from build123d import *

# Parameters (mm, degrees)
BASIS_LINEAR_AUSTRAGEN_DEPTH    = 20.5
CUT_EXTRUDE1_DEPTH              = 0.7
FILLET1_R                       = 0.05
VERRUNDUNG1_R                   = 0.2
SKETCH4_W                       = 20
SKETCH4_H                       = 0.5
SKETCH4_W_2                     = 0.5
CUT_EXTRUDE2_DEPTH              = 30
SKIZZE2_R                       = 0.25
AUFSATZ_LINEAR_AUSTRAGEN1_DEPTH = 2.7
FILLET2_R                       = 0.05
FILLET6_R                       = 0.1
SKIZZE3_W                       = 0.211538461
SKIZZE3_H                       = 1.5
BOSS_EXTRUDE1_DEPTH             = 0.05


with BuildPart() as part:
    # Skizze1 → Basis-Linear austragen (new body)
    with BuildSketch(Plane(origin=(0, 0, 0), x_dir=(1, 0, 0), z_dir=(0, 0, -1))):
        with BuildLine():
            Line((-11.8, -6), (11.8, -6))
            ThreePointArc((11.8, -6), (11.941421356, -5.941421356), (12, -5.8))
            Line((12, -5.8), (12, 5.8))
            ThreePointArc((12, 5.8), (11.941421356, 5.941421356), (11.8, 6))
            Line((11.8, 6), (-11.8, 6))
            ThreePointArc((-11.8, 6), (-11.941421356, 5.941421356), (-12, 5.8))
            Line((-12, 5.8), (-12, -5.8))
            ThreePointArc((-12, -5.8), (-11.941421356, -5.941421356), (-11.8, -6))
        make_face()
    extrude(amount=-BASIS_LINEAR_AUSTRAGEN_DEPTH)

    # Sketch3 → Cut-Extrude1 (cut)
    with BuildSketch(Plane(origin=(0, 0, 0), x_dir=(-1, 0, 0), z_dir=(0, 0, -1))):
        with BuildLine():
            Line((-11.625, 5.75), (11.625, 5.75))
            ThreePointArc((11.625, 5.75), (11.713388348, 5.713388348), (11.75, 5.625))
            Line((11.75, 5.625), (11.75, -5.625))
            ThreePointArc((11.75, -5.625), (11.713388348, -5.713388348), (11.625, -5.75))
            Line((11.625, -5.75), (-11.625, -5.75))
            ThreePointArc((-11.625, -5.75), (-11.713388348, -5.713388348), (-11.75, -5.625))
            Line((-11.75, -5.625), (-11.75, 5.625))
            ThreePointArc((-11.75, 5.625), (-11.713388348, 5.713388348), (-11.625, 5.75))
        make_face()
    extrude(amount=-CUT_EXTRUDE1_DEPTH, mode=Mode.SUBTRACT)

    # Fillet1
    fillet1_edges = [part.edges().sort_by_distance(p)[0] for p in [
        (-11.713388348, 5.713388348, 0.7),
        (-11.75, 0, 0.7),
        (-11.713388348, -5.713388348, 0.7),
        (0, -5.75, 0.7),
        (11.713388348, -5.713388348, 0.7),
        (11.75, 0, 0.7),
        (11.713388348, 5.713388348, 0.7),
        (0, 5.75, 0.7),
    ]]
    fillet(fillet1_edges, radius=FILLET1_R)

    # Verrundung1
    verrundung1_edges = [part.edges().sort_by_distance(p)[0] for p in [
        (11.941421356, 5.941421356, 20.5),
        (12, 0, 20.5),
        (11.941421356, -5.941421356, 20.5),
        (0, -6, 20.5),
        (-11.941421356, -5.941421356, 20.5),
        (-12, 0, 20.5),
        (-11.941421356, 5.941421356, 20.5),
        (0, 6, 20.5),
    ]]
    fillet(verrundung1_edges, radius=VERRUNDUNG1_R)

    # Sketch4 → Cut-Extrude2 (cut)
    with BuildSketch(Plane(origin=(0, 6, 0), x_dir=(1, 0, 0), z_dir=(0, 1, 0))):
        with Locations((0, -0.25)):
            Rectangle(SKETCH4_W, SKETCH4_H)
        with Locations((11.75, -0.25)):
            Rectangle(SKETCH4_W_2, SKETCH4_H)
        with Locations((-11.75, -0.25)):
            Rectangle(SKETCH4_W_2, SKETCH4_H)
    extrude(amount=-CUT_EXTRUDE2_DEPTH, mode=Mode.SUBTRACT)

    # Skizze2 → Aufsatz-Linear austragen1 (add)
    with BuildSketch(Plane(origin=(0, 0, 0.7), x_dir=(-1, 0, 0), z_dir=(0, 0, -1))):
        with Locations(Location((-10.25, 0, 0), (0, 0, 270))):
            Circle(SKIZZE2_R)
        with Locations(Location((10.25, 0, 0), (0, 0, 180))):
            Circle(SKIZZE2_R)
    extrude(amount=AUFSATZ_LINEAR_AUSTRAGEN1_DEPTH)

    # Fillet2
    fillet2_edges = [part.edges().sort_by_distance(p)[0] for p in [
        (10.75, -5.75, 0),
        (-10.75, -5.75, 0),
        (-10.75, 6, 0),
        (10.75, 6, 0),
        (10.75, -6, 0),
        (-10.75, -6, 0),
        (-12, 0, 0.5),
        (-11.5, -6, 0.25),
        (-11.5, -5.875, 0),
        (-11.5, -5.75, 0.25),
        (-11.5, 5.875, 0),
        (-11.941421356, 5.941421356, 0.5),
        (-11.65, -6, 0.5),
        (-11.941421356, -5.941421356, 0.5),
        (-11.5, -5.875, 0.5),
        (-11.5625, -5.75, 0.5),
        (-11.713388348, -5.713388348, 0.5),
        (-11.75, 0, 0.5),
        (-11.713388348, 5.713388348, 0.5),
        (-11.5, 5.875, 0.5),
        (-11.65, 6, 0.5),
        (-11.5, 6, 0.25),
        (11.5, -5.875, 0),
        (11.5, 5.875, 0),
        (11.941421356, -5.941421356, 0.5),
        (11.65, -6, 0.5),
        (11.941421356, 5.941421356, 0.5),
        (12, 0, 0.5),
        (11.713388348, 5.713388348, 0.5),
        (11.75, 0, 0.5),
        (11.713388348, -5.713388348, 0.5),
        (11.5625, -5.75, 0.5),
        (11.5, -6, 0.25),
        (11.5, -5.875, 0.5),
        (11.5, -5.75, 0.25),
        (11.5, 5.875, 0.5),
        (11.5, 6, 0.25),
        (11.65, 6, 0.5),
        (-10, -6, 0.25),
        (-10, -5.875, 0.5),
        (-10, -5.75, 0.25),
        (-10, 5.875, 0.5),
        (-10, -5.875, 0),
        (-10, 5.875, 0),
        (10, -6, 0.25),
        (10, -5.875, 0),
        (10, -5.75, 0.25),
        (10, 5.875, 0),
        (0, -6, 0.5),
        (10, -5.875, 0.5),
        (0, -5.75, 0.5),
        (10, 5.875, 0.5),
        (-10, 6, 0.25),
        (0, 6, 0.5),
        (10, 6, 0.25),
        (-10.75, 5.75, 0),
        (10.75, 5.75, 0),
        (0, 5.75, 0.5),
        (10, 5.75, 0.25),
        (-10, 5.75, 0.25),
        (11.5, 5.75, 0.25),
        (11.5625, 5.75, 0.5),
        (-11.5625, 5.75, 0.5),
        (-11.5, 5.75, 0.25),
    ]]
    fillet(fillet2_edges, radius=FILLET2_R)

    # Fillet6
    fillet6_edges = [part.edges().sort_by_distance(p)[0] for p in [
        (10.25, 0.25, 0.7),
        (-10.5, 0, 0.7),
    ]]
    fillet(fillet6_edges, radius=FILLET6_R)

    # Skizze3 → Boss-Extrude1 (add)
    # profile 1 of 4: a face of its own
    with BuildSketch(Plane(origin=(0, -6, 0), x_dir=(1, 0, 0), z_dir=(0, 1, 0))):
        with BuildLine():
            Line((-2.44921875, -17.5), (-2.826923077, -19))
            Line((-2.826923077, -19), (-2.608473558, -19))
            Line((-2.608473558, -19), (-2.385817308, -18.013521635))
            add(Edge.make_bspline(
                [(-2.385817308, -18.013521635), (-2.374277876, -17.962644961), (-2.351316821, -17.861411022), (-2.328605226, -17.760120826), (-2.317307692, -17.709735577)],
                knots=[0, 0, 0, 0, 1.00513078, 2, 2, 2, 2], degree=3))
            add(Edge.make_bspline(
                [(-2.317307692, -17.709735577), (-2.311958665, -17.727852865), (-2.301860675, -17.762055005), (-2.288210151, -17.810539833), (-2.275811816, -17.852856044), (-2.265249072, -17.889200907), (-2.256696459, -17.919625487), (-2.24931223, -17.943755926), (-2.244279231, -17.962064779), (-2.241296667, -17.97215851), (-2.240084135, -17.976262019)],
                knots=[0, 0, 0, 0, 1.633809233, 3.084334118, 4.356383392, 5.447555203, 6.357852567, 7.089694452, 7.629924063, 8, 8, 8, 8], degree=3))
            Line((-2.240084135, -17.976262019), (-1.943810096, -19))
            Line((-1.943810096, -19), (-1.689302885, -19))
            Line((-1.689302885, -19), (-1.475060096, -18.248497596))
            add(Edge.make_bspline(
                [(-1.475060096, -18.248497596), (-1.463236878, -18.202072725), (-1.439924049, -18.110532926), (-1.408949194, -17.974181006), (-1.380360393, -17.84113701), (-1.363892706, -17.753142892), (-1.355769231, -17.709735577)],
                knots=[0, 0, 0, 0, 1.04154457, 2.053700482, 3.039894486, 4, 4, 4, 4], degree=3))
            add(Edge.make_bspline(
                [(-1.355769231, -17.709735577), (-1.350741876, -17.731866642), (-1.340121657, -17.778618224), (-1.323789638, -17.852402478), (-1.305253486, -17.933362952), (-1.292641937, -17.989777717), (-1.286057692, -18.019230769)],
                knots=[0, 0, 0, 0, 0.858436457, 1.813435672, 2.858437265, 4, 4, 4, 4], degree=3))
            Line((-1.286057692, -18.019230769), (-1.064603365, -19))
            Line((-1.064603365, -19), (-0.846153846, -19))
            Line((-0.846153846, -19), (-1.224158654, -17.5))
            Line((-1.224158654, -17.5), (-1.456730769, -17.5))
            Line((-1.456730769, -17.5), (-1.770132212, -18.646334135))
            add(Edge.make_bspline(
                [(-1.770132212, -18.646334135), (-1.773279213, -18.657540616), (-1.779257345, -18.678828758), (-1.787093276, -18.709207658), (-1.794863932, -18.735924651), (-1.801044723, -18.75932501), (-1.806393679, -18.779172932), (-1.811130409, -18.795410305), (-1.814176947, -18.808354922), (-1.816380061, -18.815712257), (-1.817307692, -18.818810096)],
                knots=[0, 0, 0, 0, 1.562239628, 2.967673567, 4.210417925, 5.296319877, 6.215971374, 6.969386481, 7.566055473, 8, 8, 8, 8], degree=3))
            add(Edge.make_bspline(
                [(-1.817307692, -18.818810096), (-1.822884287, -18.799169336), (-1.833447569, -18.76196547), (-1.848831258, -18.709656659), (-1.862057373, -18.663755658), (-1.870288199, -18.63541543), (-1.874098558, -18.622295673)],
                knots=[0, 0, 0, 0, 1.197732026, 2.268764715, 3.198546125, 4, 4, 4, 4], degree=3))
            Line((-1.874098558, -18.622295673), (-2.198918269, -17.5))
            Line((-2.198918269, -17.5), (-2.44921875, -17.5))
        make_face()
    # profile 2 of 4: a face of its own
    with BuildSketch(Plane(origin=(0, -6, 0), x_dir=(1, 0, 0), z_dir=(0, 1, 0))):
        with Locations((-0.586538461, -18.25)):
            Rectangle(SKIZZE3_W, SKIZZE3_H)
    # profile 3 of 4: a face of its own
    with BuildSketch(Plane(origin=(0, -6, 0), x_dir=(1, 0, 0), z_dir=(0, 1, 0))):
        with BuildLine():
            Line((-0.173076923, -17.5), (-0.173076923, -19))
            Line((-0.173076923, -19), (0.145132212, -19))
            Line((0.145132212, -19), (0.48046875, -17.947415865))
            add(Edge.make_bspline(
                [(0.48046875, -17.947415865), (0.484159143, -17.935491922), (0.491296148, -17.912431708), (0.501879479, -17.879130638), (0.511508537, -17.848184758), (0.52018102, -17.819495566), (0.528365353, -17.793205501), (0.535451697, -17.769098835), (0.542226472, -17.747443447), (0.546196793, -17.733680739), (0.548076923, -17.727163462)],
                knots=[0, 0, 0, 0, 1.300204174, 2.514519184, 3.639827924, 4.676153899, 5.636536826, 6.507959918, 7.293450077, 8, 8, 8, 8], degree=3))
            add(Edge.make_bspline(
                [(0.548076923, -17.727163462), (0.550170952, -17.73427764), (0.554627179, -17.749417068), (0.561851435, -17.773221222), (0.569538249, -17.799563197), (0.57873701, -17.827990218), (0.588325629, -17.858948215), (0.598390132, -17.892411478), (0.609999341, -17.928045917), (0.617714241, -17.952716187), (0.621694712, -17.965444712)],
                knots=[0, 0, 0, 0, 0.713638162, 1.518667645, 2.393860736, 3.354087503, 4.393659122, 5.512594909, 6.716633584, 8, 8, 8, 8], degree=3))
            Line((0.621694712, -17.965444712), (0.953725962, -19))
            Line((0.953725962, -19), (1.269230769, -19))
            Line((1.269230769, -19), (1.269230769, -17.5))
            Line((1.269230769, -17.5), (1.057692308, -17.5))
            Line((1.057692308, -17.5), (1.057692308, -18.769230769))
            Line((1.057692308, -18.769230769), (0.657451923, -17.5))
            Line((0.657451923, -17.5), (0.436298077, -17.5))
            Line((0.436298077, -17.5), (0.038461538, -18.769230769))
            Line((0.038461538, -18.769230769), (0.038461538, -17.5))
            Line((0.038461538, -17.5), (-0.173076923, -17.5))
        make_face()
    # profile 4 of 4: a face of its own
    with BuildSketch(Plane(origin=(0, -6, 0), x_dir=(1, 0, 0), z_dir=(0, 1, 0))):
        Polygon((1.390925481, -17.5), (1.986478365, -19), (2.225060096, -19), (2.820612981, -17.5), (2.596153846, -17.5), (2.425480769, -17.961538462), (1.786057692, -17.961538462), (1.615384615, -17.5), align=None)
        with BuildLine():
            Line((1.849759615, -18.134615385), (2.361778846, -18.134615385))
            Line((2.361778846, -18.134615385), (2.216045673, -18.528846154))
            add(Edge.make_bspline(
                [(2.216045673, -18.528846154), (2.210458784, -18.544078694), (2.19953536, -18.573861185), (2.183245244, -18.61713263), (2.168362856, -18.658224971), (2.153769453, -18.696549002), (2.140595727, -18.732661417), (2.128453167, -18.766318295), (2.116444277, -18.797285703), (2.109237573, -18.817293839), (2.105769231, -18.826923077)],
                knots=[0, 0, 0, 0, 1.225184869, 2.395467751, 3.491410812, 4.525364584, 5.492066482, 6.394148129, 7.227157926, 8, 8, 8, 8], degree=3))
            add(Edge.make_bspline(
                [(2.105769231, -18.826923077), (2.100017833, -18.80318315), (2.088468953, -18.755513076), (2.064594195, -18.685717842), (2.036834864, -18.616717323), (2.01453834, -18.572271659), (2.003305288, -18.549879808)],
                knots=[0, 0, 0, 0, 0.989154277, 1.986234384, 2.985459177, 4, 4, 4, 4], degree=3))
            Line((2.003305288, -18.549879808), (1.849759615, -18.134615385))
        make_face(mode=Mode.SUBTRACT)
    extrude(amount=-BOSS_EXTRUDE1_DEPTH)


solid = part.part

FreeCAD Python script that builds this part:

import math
import FreeCAD as App
import Part
import Sketcher
from FreeCAD import Vector


def edges_at(feature, points):
    """Names of the edges that pass closest to the given points."""
    edges = feature.Shape.Edges
    near = lambda p: min(range(len(edges)), key=lambda i: edges[i].distToShape(Part.Vertex(*p))[0])
    return sorted({f"Edge{near(p) + 1}" for p in points})


def add_polygon(sketch, points):
    """Adds a closed chain of lines whose ends are joined by coincident constraints."""
    first, n = sketch.GeometryCount, len(points)
    for a, b in zip(points, points[1:] + points[:1]):
        sketch.addGeometry(Part.LineSegment(App.Vector(*a, 0), App.Vector(*b, 0)), False)
    for i in range(n):
        sketch.addConstraint(Sketcher.Constraint("Coincident", first + i, 2, first + (i + 1) % n, 1))

doc = App.newDocument("Part")
params = doc.addObject("Spreadsheet::Sheet", "Params")
for row, (alias, value) in enumerate([
    ("sketch1_radius", "0.2 mm"),
    ("sketch1_width", "23.6 mm"),
    ("sketch1_height", "11.6 mm"),
    ("pad1_length", "20.5 mm"),
    ("sketch2_width", "23.25 mm"),
    ("sketch2_height", "11.25 mm"),
    ("pocket1_length", "0.7 mm"),
    ("fillet_radius", "0.05 mm"),
    ("fillet2_radius", "0.2 mm"),
    ("sketch3_width", "20 mm"),
    ("sketch3_width2", "0.5 mm"),
    ("pocket2_length", "30 mm"),
    ("sketch4_diameter", "0.5 mm"),
    ("pad2_length", "2.7 mm"),
    ("fillet3_radius", "0.05 mm"),
    ("fillet4_radius", "0.1 mm"),
    ("sketch5_height", "1.5 mm"),
    ("sketch5_height2", "1.5 mm"),
    ("sketch5_height3", "1.5 mm"),
    ("pad3_length", "0.05 mm"),
], start=1):
    params.set(f"A{row}", alias)
    params.set(f"B{row}", "=" + value)
    params.setAlias(f"B{row}", alias)

body = doc.addObject("PartDesign::Body", "Body")

sketch1 = body.newObject("Sketcher::SketchObject", "Sketch")
sketch1.AttachmentSupport = (doc.getObject("XY_Plane"), [""])
sketch1.MapMode = "FlatFace"
sketch1.addGeometry([
    Part.LineSegment(Vector(-11.8, 6, 0), Vector(11.8, 6, 0)),
    Part.ArcOfCircle(Part.Circle(Vector(11.8, 5.8, 0), Vector(0, 0, 1), 0.2), math.radians(0), math.radians(90)),
    Part.LineSegment(Vector(12, 5.8, 0), Vector(12, -5.8, 0)),
    Part.ArcOfCircle(Part.Circle(Vector(11.8, -5.8, 0), Vector(0, 0, 1), 0.2), math.radians(-90), math.radians(0)),
    Part.LineSegment(Vector(11.8, -6, 0), Vector(-11.8, -6, 0)),
    Part.ArcOfCircle(Part.Circle(Vector(-11.8, -5.8, 0), Vector(0, 0, 1), 0.2), math.radians(-180), math.radians(-90)),
    Part.LineSegment(Vector(-12, -5.8, 0), Vector(-12, 5.8, 0)),
    Part.ArcOfCircle(Part.Circle(Vector(-11.8, 5.8, 0), Vector(0, 0, 1), 0.2), math.radians(90), math.radians(180)),
], False)
sketch1.addConstraint([
    Sketcher.Constraint("Tangent", 0, 2, 1, 2),
    Sketcher.Constraint("Tangent", 1, 1, 2, 1),
    Sketcher.Constraint("Tangent", 2, 2, 3, 2),
    Sketcher.Constraint("Tangent", 3, 1, 4, 1),
    Sketcher.Constraint("Tangent", 4, 2, 5, 2),
    Sketcher.Constraint("Tangent", 5, 1, 6, 1),
    Sketcher.Constraint("Tangent", 6, 2, 7, 2),
    Sketcher.Constraint("Tangent", 7, 1, 0, 1),
    Sketcher.Constraint("Horizontal", 0),
    Sketcher.Constraint("Vertical", 2),
    Sketcher.Constraint("Horizontal", 4),
    Sketcher.Constraint("Vertical", 6),
    Sketcher.Constraint("Equal", 1, 3),
    Sketcher.Constraint("Equal", 3, 5),
    Sketcher.Constraint("Equal", 5, 7),
    Sketcher.Constraint("Symmetric", 1, 3, 5, 3, -1, 1),
    Sketcher.Constraint("Radius", 1, 0.2),
    Sketcher.Constraint("DistanceX", 0, 1, 0, 2, 23.6),
    Sketcher.Constraint("DistanceY", 2, 2, 2, 1, 11.6),
])
sketch1.setExpression("Constraints[16]", "Params.sketch1_radius")
sketch1.setExpression("Constraints[17]", "Params.sketch1_width")
sketch1.setExpression("Constraints[18]", "Params.sketch1_height")
pad1 = body.newObject("PartDesign::Pad", "Pad")
pad1.Profile = sketch1
pad1.setExpression("Length", "Params.pad1_length")

sketch2 = body.newObject("Sketcher::SketchObject", "Sketch001")
sketch2.AttachmentSupport = (doc.getObject("XY_Plane"), [""])
sketch2.MapMode = "FlatFace"
sketch2.addGeometry([
    Part.LineSegment(Vector(-11.62, 5.75, 0), Vector(11.62, 5.75, 0)),
    Part.ArcOfCircle(Part.Circle(Vector(11.63, 5.63, 0), Vector(0, 0, 1), 0.12), math.radians(0), math.radians(90)),
    Part.LineSegment(Vector(11.75, 5.62, 0), Vector(11.75, -5.62, 0)),
    Part.ArcOfCircle(Part.Circle(Vector(11.63, -5.63, 0), Vector(0, 0, 1), 0.12), math.radians(-90), math.radians(0)),
    Part.LineSegment(Vector(11.62, -5.75, 0), Vector(-11.62, -5.75, 0)),
    Part.ArcOfCircle(Part.Circle(Vector(-11.63, -5.63, 0), Vector(0, 0, 1), 0.12), math.radians(180), math.radians(270)),
    Part.LineSegment(Vector(-11.75, -5.62, 0), Vector(-11.75, 5.62, 0)),
    Part.ArcOfCircle(Part.Circle(Vector(-11.63, 5.63, 0), Vector(0, 0, 1), 0.12), math.radians(90), math.radians(180)),
], False)
sketch2.addConstraint([
    Sketcher.Constraint("Tangent", 0, 2, 1, 2),
    Sketcher.Constraint("Tangent", 1, 1, 2, 1),
    Sketcher.Constraint("Tangent", 2, 2, 3, 2),
    Sketcher.Constraint("Tangent", 3, 1, 4, 1),
    Sketcher.Constraint("Tangent", 4, 2, 5, 2),
    Sketcher.Constraint("Tangent", 5, 1, 6, 1),
    Sketcher.Constraint("Tangent", 6, 2, 7, 2),
    Sketcher.Constraint("Tangent", 7, 1, 0, 1),
    Sketcher.Constraint("Horizontal", 0),
    Sketcher.Constraint("Vertical", 2),
    Sketcher.Constraint("Horizontal", 4),
    Sketcher.Constraint("Vertical", 6),
    Sketcher.Constraint("Equal", 1, 3),
    Sketcher.Constraint("Equal", 3, 5),
    Sketcher.Constraint("Equal", 5, 7),
    Sketcher.Constraint("Symmetric", 1, 3, 5, 3, -1, 1),
    Sketcher.Constraint("Radius", 1, 0.125),
    Sketcher.Constraint("DistanceX", 0, 1, 0, 2, 23.25),
    Sketcher.Constraint("DistanceY", 2, 2, 2, 1, 11.25),
])
sketch2.setExpression("Constraints[17]", "Params.sketch2_width")
sketch2.setExpression("Constraints[18]", "Params.sketch2_height")
pocket1 = body.newObject("PartDesign::Pocket", "Pocket")
pocket1.Profile = sketch2
pocket1.setExpression("Length", "Params.pocket1_length")
pocket1.Reversed = True
doc.recompute()

fillet = body.newObject("PartDesign::Fillet", "Fillet")
fillet.Base = (pocket1, edges_at(pocket1, [
    (-11.713, 5.713, 0.7),
    (-11.75, 0, 0.7),
    (-11.713, -5.713, 0.7),
    (0, -5.75, 0.7),
    (11.713, -5.713, 0.7),
    (11.75, 0, 0.7),
    (11.713, 5.713, 0.7),
    (0, 5.75, 0.7),
]))
fillet.setExpression("Radius", "Params.fillet_radius")
doc.recompute()

fillet2 = body.newObject("PartDesign::Fillet", "Fillet001")
fillet2.Base = (fillet, edges_at(fillet, [
    (11.941, 5.941, 20.5),
    (12, 0, 20.5),
    (11.941, -5.941, 20.5),
    (0, -6, 20.5),
    (-11.941, -5.941, 20.5),
    (-12, 0, 20.5),
    (-11.941, 5.941, 20.5),
    (0, 6, 20.5),
]))
fillet2.setExpression("Radius", "Params.fillet2_radius")

sketch3 = body.newObject("Sketcher::SketchObject", "Sketch002")
sketch3.AttachmentSupport = (doc.getObject("XZ_Plane"), [""])
sketch3.MapMode = "FlatFace"
sketch3.AttachmentOffset = App.Placement(Vector(0, 0, -6), App.Rotation())
add_polygon(sketch3, [(-10, 0), (-10, 0.5), (10, 0.5), (10, 0)])
add_polygon(sketch3, [(11.5, 0), (11.5, 0.5), (12, 0.5), (12, 0)])
add_polygon(sketch3, [(-12, 0), (-12, 0.5), (-11.5, 0.5), (-11.5, 0)])
sketch3.addConstraint([
    Sketcher.Constraint("Vertical", 0),
    Sketcher.Constraint("Horizontal", 1),
    Sketcher.Constraint("Vertical", 2),
    Sketcher.Constraint("Horizontal", 3),
    Sketcher.Constraint("Vertical", 4),
    Sketcher.Constraint("Horizontal", 5),
    Sketcher.Constraint("Vertical", 6),
    Sketcher.Constraint("Horizontal", 7),
    Sketcher.Constraint("Vertical", 8),
    Sketcher.Constraint("Horizontal", 9),
    Sketcher.Constraint("Vertical", 10),
    Sketcher.Constraint("Horizontal", 11),
    Sketcher.Constraint("Symmetric", 2, 2, 3, 2, -1, 1),
    Sketcher.Constraint("Symmetric", 7, 2, 10, 2, -1, 1),
    Sketcher.Constraint("Symmetric", 5, 2, 8, 2, -2),
    Sketcher.Constraint("PointOnObject", 6, 2, -1),
    Sketcher.Constraint("Horizontal", 1, 2, 4, 2),
    Sketcher.Constraint("Equal", 11, 0),
    Sketcher.Constraint("DistanceX", 1, 1, 1, 2, 20.0),
    Sketcher.Constraint("DistanceX", 5, 1, 5, 2, 0.5),
    Sketcher.Constraint("DistanceX", -1, 1, 5, 2, 12.0),
])
sketch3.setExpression("Constraints[30]", "Params.sketch3_width")
sketch3.setExpression("Constraints[31]", "Params.sketch3_width2")
pocket2 = body.newObject("PartDesign::Pocket", "Pocket001")
pocket2.Profile = sketch3
pocket2.setExpression("Length", "Params.pocket2_length")
pocket2.Reversed = True

sketch4 = body.newObject("Sketcher::SketchObject", "Sketch003")
sketch4.AttachmentSupport = (doc.getObject("XY_Plane"), [""])
sketch4.MapMode = "FlatFace"
sketch4.AttachmentOffset = App.Placement(Vector(0, 0, 0.7), App.Rotation())
sketch4.addGeometry([
    Part.Circle(Vector(10.25, 0, 0), Vector(0, 0, 1), 0.25),
    Part.Circle(Vector(-10.25, 0, 0), Vector(0, 0, 1), 0.25),
], False)
sketch4.addConstraint([
    Sketcher.Constraint("Equal", 0, 1),
    Sketcher.Constraint("Symmetric", 0, 3, 1, 3, -1, 1),
    Sketcher.Constraint("PointOnObject", 0, 3, -1),
    Sketcher.Constraint("Diameter", 0, 0.5),
    Sketcher.Constraint("DistanceX", 1, 3, 0, 3, 20.5),
])
sketch4.setExpression("Constraints[3]", "Params.sketch4_diameter")
pad2 = body.newObject("PartDesign::Pad", "Pad001")
pad2.Profile = sketch4
pad2.setExpression("Length", "Params.pad2_length")
pad2.Reversed = True
doc.recompute()

fillet3 = body.newObject("PartDesign::Fillet", "Fillet002")
fillet3.Base = (pad2, edges_at(pad2, [
    (10.75, -5.75, 0),
    (-10.75, -5.75, 0),
    (-10.75, 6, 0),
    (10.75, 6, 0),
    (10.75, -6, 0),
    (-10.75, -6, 0),
    (-12, 0, 0.5),
    (-11.5, -6, 0.25),
    (-11.5, -5.875, 0),
    (-11.5, -5.75, 0.25),
    (-11.5, 5.875, 0),
    (-11.941, 5.941, 0.5),
    (-11.65, -6, 0.5),
    (-11.941, -5.941, 0.5),
    (-11.5, -5.875, 0.5),
    (-11.562, -5.75, 0.5),
    (-11.713, -5.713, 0.5),
    (-11.75, 0, 0.5),
    (-11.713, 5.713, 0.5),
    (-11.5, 5.875, 0.5),
    (-11.65, 6, 0.5),
    (-11.5, 6, 0.25),
    (11.5, -5.875, 0),
    (11.5, 5.875, 0),
    (11.941, -5.941, 0.5),
    (11.65, -6, 0.5),
    (11.941, 5.941, 0.5),
    (12, 0, 0.5),
    (11.713, 5.713, 0.5),
    (11.75, 0, 0.5),
    (11.713, -5.713, 0.5),
    (11.562, -5.75, 0.5),
    (11.5, -6, 0.25),
    (11.5, -5.875, 0.5),
    (11.5, -5.75, 0.25),
    (11.5, 5.875, 0.5),
    (11.5, 6, 0.25),
    (11.65, 6, 0.5),
    (-10, -6, 0.25),
    (-10, -5.875, 0.5),
    (-10, -5.75, 0.25),
    (-10, 5.875, 0.5),
    (-10, -5.875, 0),
    (-10, 5.875, 0),
    (10, -6, 0.25),
    (10, -5.875, 0),
    (10, -5.75, 0.25),
    (10, 5.875, 0),
    (0, -6, 0.5),
    (10, -5.875, 0.5),
    (0, -5.75, 0.5),
    (10, 5.875, 0.5),
    (-10, 6, 0.25),
    (0, 6, 0.5),
    (10, 6, 0.25),
    (-10.75, 5.75, 0),
    (10.75, 5.75, 0),
    (0, 5.75, 0.5),
    (10, 5.75, 0.25),
    (-10, 5.75, 0.25),
    (11.5, 5.75, 0.25),
    (11.562, 5.75, 0.5),
    (-11.562, 5.75, 0.5),
    (-11.5, 5.75, 0.25),
]))
fillet3.setExpression("Radius", "Params.fillet3_radius")
doc.recompute()

fillet4 = body.newObject("PartDesign::Fillet", "Fillet003")
fillet4.Base = (fillet3, edges_at(fillet3, [(10.25, 0.25, 0.7), (-10.5, 0, 0.7)]))
fillet4.setExpression("Radius", "Params.fillet4_radius")

sketch5 = body.newObject("Sketcher::SketchObject", "Sketch004")
sketch5.AttachmentSupport = (doc.getObject("XZ_Plane"), [""])
sketch5.MapMode = "FlatFace"
sketch5.AttachmentOffset = App.Placement(Vector(0, 0, 6), App.Rotation())
sketch5.addGeometry(Part.LineSegment(Vector(-2.449219, 17.5, 0), Vector(-2.826923, 19, 0)), False)
sketch5.addGeometry(Part.LineSegment(Vector(-2.826923, 19, 0), Vector(-2.608474, 19, 0)), False)
sketch5.addGeometry(Part.LineSegment(Vector(-2.608474, 19, 0), Vector(-2.385817, 18.013522, 0)), False)
sketch5.addGeometry(Part.BSplineCurve([Vector(-2.385817, 18.013522, 0), Vector(-2.374278, 17.962645, 0), Vector(-2.351317, 17.861411, 0), Vector(-2.328605, 17.760121, 0), Vector(-2.317308, 17.709736, 0)], [4, 1, 4], [0, 1.00513078, 2], False, 3, [1, 1, 1, 1, 1], False), False)
sketch5.addGeometry(Part.BSplineCurve([Vector(-2.317308, 17.709736, 0), Vector(-2.311959, 17.727853, 0), Vector(-2.301861, 17.762055, 0), Vector(-2.28821, 17.81054, 0), Vector(-2.275812, 17.852856, 0), Vector(-2.265249, 17.889201, 0), Vector(-2.256696, 17.919625, 0), Vector(-2.249312, 17.943756, 0), Vector(-2.244279, 17.962065, 0), Vector(-2.241297, 17.972159, 0), Vector(-2.240084, 17.976262, 0)], [4, 1, 1, 1, 1, 1, 1, 1, 4], [0, 1.633809233, 3.084334118, 4.356383392, 5.447555203, 6.357852567, 7.089694452, 7.629924063, 8], False, 3, [1, 1, 1, 1, 1, 1, 1, 1, 1, 1, 1], False), False)
sketch5.addGeometry(Part.LineSegment(Vector(-2.240084, 17.976262, 0), Vector(-1.94381, 19, 0)), False)
sketch5.addGeometry(Part.LineSegment(Vector(-1.94381, 19, 0), Vector(-1.689303, 19, 0)), False)
sketch5.addGeometry(Part.LineSegment(Vector(-1.689303, 19, 0), Vector(-1.47506, 18.248498, 0)), False)
sketch5.addGeometry(Part.BSplineCurve([Vector(-1.47506, 18.248498, 0), Vector(-1.463237, 18.202073, 0), Vector(-1.439924, 18.110533, 0), Vector(-1.408949, 17.974181, 0), Vector(-1.38036, 17.841137, 0), Vector(-1.363893, 17.753143, 0), Vector(-1.355769, 17.709736, 0)], [4, 1, 1, 1, 4], [0, 1.04154457, 2.053700482, 3.039894486, 4], False, 3, [1, 1, 1, 1, 1, 1, 1], False), False)
sketch5.addGeometry(Part.BSplineCurve([Vector(-1.355769, 17.709736, 0), Vector(-1.350742, 17.731867, 0), Vector(-1.340122, 17.778618, 0), Vector(-1.32379, 17.852402, 0), Vector(-1.305253, 17.933363, 0), Vector(-1.292642, 17.989778, 0), Vector(-1.286058, 18.019231, 0)], [4, 1, 1, 1, 4], [0, 0.858436457, 1.813435672, 2.858437265, 4], False, 3, [1, 1, 1, 1, 1, 1, 1], False), False)
sketch5.addGeometry(Part.LineSegment(Vector(-1.286058, 18.019231, 0), Vector(-1.064603, 19, 0)), False)
sketch5.addGeometry(Part.LineSegment(Vector(-1.064603, 19, 0), Vector(-0.846154, 19, 0)), False)
sketch5.addGeometry(Part.LineSegment(Vector(-0.846154, 19, 0), Vector(-1.224159, 17.5, 0)), False)
sketch5.addGeometry(Part.LineSegment(Vector(-1.224159, 17.5, 0), Vector(-1.456731, 17.5, 0)), False)
sketch5.addGeometry(Part.LineSegment(Vector(-1.456731, 17.5, 0), Vector(-1.770132, 18.646334, 0)), False)
sketch5.addGeometry(Part.BSplineCurve([Vector(-1.770132, 18.646334, 0), Vector(-1.773279, 18.657541, 0), Vector(-1.779257, 18.678829, 0), Vector(-1.787093, 18.709208, 0), Vector(-1.794864, 18.735925, 0), Vector(-1.801045, 18.759325, 0), Vector(-1.806394, 18.779173, 0), Vector(-1.81113, 18.79541, 0), Vector(-1.814177, 18.808355, 0), Vector(-1.81638, 18.815712, 0), Vector(-1.817308, 18.81881, 0)], [4, 1, 1, 1, 1, 1, 1, 1, 4], [0, 1.562239628, 2.967673567, 4.210417925, 5.296319877, 6.215971374, 6.969386481, 7.566055473, 8], False, 3, [1, 1, 1, 1, 1, 1, 1, 1, 1, 1, 1], False), False)
sketch5.addGeometry(Part.BSplineCurve([Vector(-1.817308, 18.81881, 0), Vector(-1.822884, 18.799169, 0), Vector(-1.833448, 18.761965, 0), Vector(-1.848831, 18.709657, 0), Vector(-1.862057, 18.663756, 0), Vector(-1.870288, 18.635415, 0), Vector(-1.874099, 18.622296, 0)], [4, 1, 1, 1, 4], [0, 1.197732026, 2.268764715, 3.198546125, 4], False, 3, [1, 1, 1, 1, 1, 1, 1], False), False)
sketch5.addGeometry(Part.LineSegment(Vector(-1.874099, 18.622296, 0), Vector(-2.198918, 17.5, 0)), False)
sketch5.addGeometry(Part.LineSegment(Vector(-2.198918, 17.5, 0), Vector(-2.449219, 17.5, 0)), False)
add_polygon(sketch5, [(-0.692308, 17.5), (-0.692308, 19), (-0.480769, 19), (-0.480769, 17.5)])
sketch5.addGeometry(Part.LineSegment(Vector(-0.173077, 17.5, 0), Vector(-0.173077, 19, 0)), False)
sketch5.addGeometry(Part.LineSegment(Vector(-0.173077, 19, 0), Vector(0.145132, 19, 0)), False)
sketch5.addGeometry(Part.LineSegment(Vector(0.145132, 19, 0), Vector(0.480469, 17.947416, 0)), False)
sketch5.addGeometry(Part.BSplineCurve([Vector(0.480469, 17.947416, 0), Vector(0.484159, 17.935492, 0), Vector(0.491296, 17.912432, 0), Vector(0.501879, 17.879131, 0), Vector(0.511509, 17.848185, 0), Vector(0.520181, 17.819496, 0), Vector(0.528365, 17.793206, 0), Vector(0.535452, 17.769099, 0), Vector(0.542226, 17.747443, 0), Vector(0.546197, 17.733681, 0), Vector(0.548077, 17.727163, 0)], [4, 1, 1, 1, 1, 1, 1, 1, 4], [0, 1.300204174, 2.514519184, 3.639827924, 4.676153899, 5.636536826, 6.507959918, 7.293450077, 8], False, 3, [1, 1, 1, 1, 1, 1, 1, 1, 1, 1, 1], False), False)
sketch5.addGeometry(Part.BSplineCurve([Vector(0.548077, 17.727163, 0), Vector(0.550171, 17.734278, 0), Vector(0.554627, 17.749417, 0), Vector(0.561851, 17.773221, 0), Vector(0.569538, 17.799563, 0), Vector(0.578737, 17.82799, 0), Vector(0.588326, 17.858948, 0), Vector(0.59839, 17.892411, 0), Vector(0.609999, 17.928046, 0), Vector(0.617714, 17.952716, 0), Vector(0.621695, 17.965445, 0)], [4, 1, 1, 1, 1, 1, 1, 1, 4], [0, 0.713638162, 1.518667645, 2.393860736, 3.354087503, 4.393659122, 5.512594909, 6.716633584, 8], False, 3, [1, 1, 1, 1, 1, 1, 1, 1, 1, 1, 1], False), False)
sketch5.addGeometry(Part.LineSegment(Vector(0.621695, 17.965445, 0), Vector(0.953726, 19, 0)), False)
sketch5.addGeometry(Part.LineSegment(Vector(0.953726, 19, 0), Vector(1.269231, 19, 0)), False)
sketch5.addGeometry(Part.LineSegment(Vector(1.269231, 19, 0), Vector(1.269231, 17.5, 0)), False)
sketch5.addGeometry(Part.LineSegment(Vector(1.269231, 17.5, 0), Vector(1.057692, 17.5, 0)), False)
sketch5.addGeometry(Part.LineSegment(Vector(1.057692, 17.5, 0), Vector(1.057692, 18.769231, 0)), False)
sketch5.addGeometry(Part.LineSegment(Vector(1.057692, 18.769231, 0), Vector(0.657452, 17.5, 0)), False)
sketch5.addGeometry(Part.LineSegment(Vector(0.657452, 17.5, 0), Vector(0.436298, 17.5, 0)), False)
sketch5.addGeometry(Part.LineSegment(Vector(0.436298, 17.5, 0), Vector(0.038462, 18.769231, 0)), False)
sketch5.addGeometry(Part.LineSegment(Vector(0.038462, 18.769231, 0), Vector(0.038462, 17.5, 0)), False)
sketch5.addGeometry(Part.LineSegment(Vector(0.038462, 17.5, 0), Vector(-0.173077, 17.5, 0)), False)
add_polygon(sketch5, [(1.390925, 17.5), (1.986478, 19), (2.22506, 19), (2.820613, 17.5), (2.596154, 17.5), (2.425481, 17.961538), (1.786058, 17.961538), (1.615385, 17.5)])
sketch5.addGeometry(Part.LineSegment(Vector(2.003305, 18.54988, 0), Vector(1.84976, 18.134615, 0)), False)
sketch5.addGeometry(Part.LineSegment(Vector(1.84976, 18.134615, 0), Vector(2.361779, 18.134615, 0)), False)
sketch5.addGeometry(Part.LineSegment(Vector(2.361779, 18.134615, 0), Vector(2.216046, 18.528846, 0)), False)
sketch5.addGeometry(Part.BSplineCurve([Vector(2.216046, 18.528846, 0), Vector(2.210459, 18.544079, 0), Vector(2.199535, 18.573861, 0), Vector(2.183245, 18.617133, 0), Vector(2.168363, 18.658225, 0), Vector(2.153769, 18.696549, 0), Vector(2.140596, 18.732661, 0), Vector(2.128453, 18.766318, 0), Vector(2.116444, 18.797286, 0), Vector(2.109238, 18.817294, 0), Vector(2.105769, 18.826923, 0)], [4, 1, 1, 1, 1, 1, 1, 1, 4], [0, 1.225184869, 2.395467751, 3.491410812, 4.525364584, 5.492066482, 6.394148129, 7.227157926, 8], False, 3, [1, 1, 1, 1, 1, 1, 1, 1, 1, 1, 1], False), False)
sketch5.addGeometry(Part.BSplineCurve([Vector(2.105769, 18.826923, 0), Vector(2.100018, 18.803183, 0), Vector(2.088469, 18.755513, 0), Vector(2.064594, 18.685718, 0), Vector(2.036835, 18.616717, 0), Vector(2.014538, 18.572272, 0), Vector(2.003305, 18.54988, 0)], [4, 1, 1, 1, 4], [0, 0.989154277, 1.986234384, 2.985459177, 4], False, 3, [1, 1, 1, 1, 1, 1, 1], False), False)
sketch5.addConstraint([
    Sketcher.Constraint("Block", 3),
    Sketcher.Constraint("Block", 4),
    Sketcher.Constraint("Block", 8),
    Sketcher.Constraint("Block", 9),
    Sketcher.Constraint("Block", 15),
    Sketcher.Constraint("Block", 16),
    Sketcher.Constraint("Block", 26),
    Sketcher.Constraint("Block", 27),
    Sketcher.Constraint("Block", 49),
    Sketcher.Constraint("Block", 50),
    Sketcher.Constraint("Coincident", 0, 2, 1, 1),
    Sketcher.Constraint("Coincident", 1, 2, 2, 1),
    Sketcher.Constraint("Coincident", 2, 2, 3, 1),
    Sketcher.Constraint("Coincident", 4, 2, 5, 1),
    Sketcher.Constraint("Coincident", 5, 2, 6, 1),
    Sketcher.Constraint("Coincident", 6, 2, 7, 1),
    Sketcher.Constraint("Coincident", 7, 2, 8, 1),
    Sketcher.Constraint("Coincident", 9, 2, 10, 1),
    Sketcher.Constraint("Coincident", 10, 2, 11, 1),
    Sketcher.Constraint("Coincident", 11, 2, 12, 1),
    Sketcher.Constraint("Coincident", 12, 2, 13, 1),
    Sketcher.Constraint("Coincident", 13, 2, 14, 1),
    Sketcher.Constraint("Coincident", 14, 2, 15, 1),
    Sketcher.Constraint("Coincident", 16, 2, 17, 1),
    Sketcher.Constraint("Coincident", 17, 2, 18, 1),
    Sketcher.Constraint("Coincident", 18, 2, 0, 1),
    Sketcher.Constraint("Coincident", 23, 2, 24, 1),
    Sketcher.Constraint("Coincident", 24, 2, 25, 1),
    Sketcher.Constraint("Coincident", 25, 2, 26, 1),
    Sketcher.Constraint("Coincident", 27, 2, 28, 1),
    Sketcher.Constraint("Coincident", 28, 2, 29, 1),
    Sketcher.Constraint("Coincident", 29, 2, 30, 1),
    Sketcher.Constraint("Coincident", 30, 2, 31, 1),
    Sketcher.Constraint("Coincident", 31, 2, 32, 1),
    Sketcher.Constraint("Coincident", 32, 2, 33, 1),
    Sketcher.Constraint("Coincident", 33, 2, 34, 1),
    Sketcher.Constraint("Coincident", 34, 2, 35, 1),
    Sketcher.Constraint("Coincident", 35, 2, 36, 1),
    Sketcher.Constraint("Coincident", 36, 2, 37, 1),
    Sketcher.Constraint("Coincident", 37, 2, 23, 1),
    Sketcher.Constraint("Coincident", 46, 2, 47, 1),
    Sketcher.Constraint("Coincident", 47, 2, 48, 1),
    Sketcher.Constraint("Coincident", 48, 2, 49, 1),
    Sketcher.Constraint("Coincident", 50, 2, 46, 1),
    Sketcher.Constraint("Horizontal", 1),
    Sketcher.Constraint("Horizontal", 6),
    Sketcher.Constraint("Horizontal", 11),
    Sketcher.Constraint("Horizontal", 13),
    Sketcher.Constraint("Horizontal", 18),
    Sketcher.Constraint("Vertical", 19),
    Sketcher.Constraint("Horizontal", 20),
    Sketcher.Constraint("Vertical", 21),
    Sketcher.Constraint("Horizontal", 22),
    Sketcher.Constraint("Vertical", 23),
    Sketcher.Constraint("Horizontal", 24),
    Sketcher.Constraint("Horizontal", 29),
    Sketcher.Constraint("Vertical", 30),
    Sketcher.Constraint("Horizontal", 31),
    Sketcher.Constraint("Vertical", 32),
    Sketcher.Constraint("Horizontal", 34),
    Sketcher.Constraint("Vertical", 36),
    Sketcher.Constraint("Horizontal", 37),
    Sketcher.Constraint("Horizontal", 39),
    Sketcher.Constraint("Horizontal", 41),
    Sketcher.Constraint("Horizontal", 43),
    Sketcher.Constraint("Horizontal", 45),
    Sketcher.Constraint("Horizontal", 47),
    Sketcher.Constraint("DistanceY", 19, 1, 19, 2, 1.5),
    Sketcher.Constraint("DistanceY", 23, 1, 23, 2, 1.5),
    Sketcher.Constraint("DistanceY", 30, 2, 30, 1, 1.5),
    Sketcher.Constraint("DistanceY", -1, 1, 0, 2, 19.0),
    Sketcher.Constraint("DistanceY", -1, 1, 5, 2, 19.0),
    Sketcher.Constraint("DistanceY", -1, 1, 10, 2, 19.0),
    Sketcher.Constraint("DistanceY", -1, 1, 19, 2, 19.0),
    Sketcher.Constraint("DistanceY", -1, 1, 23, 2, 19.0),
    Sketcher.Constraint("DistanceY", -1, 1, 28, 2, 19.0),
    Sketcher.Constraint("DistanceY", -1, 1, 38, 2, 19.0),
    Sketcher.Constraint("DistanceY", -1, 1, 12, 2, 17.5),
    Sketcher.Constraint("DistanceY", -1, 1, 17, 2, 17.5),
    Sketcher.Constraint("DistanceY", -1, 1, 33, 2, 17.5),
    Sketcher.Constraint("DistanceY", -1, 1, 40, 2, 17.5),
    Sketcher.Constraint("DistanceY", -1, 1, 44, 2, 17.5),
    Sketcher.Constraint("DistanceX", 20, 2, 29, 2, 1.75),
    Sketcher.Constraint("DistanceX", 18, 2, 18, 1, 0.2503),
    Sketcher.Constraint("DistanceX", 1, 1, 1, 2, 0.21845),
    Sketcher.Constraint("DistanceX", 11, 1, 11, 2, 0.21845),
    Sketcher.Constraint("DistanceX", 20, 1, 20, 2, 0.211538),
    Sketcher.Constraint("DistanceX", 24, 1, 24, 2, 0.318209),
    Sketcher.Constraint("DistanceX", 31, 2, 31, 1, 0.211538),
    Sketcher.Constraint("DistanceX", 37, 2, 37, 1, 0.211538),
    Sketcher.Constraint("DistanceX", 39, 1, 39, 2, 0.238582),
    Sketcher.Constraint("DistanceX", 41, 2, 41, 1, 0.224459),
    Sketcher.Constraint("DistanceX", 45, 2, 45, 1, 0.224459),
    Sketcher.Constraint("DistanceX", 47, 1, 47, 2, 0.512019),
    Sketcher.Constraint("DistanceY", 32, 1, 32, 2, 1.269231),
    Sketcher.Constraint("DistanceY", 36, 2, 36, 1, 1.269231),
    Sketcher.Constraint("DistanceX", -1, 1, 34, 2, 0.436298),
    Sketcher.Constraint("DistanceX", 6, 2, 10, 2, 0.6247),
    Sketcher.Constraint("DistanceX", 7, 2, 12, 2, 0.250901),
    Sketcher.Constraint("DistanceX", 2, 2, 17, 2, 0.186899),
    Sketcher.Constraint("DistanceX", 20, 2, 24, 2, 0.625901),
    Sketcher.Constraint("DistanceX", 43, 2, 46, 2, 0.063702),
    Sketcher.Constraint("DistanceX", 47, 2, 42, 2, 0.063702),
    Sketcher.Constraint("Distance", 10, 1.00546),
    Sketcher.Constraint("Distance", 25, 1.10471),
    Sketcher.Constraint("Distance", 28, 1.086531),
    Sketcher.Constraint("Distance", 33, 1.330842),
    Sketcher.Constraint("DistanceX", 6, 1, 6, 2, 0.254507),
    Sketcher.Constraint("DistanceX", 13, 2, 13, 1, 0.232572),
    Sketcher.Constraint("DistanceX", -1, 1, 38, 2, 1.986478),
    Sketcher.Constraint("DistanceX", -1, 1, 42, 2, 2.425481),
    Sketcher.Constraint("DistanceY", -1, 1, 42, 2, 17.961538),
    Sketcher.Constraint("DistanceX", 1, 2, 6, 2, 0.919171),
    Sketcher.Constraint("DistanceX", 31, 2, 40, 2, 1.762921),
    Sketcher.Constraint("DistanceY", 47, 2, 48, 2, 0.394231),
    Sketcher.Constraint("Distance", 38, 1.613903),
])
sketch5.setExpression("Constraints[79]", "Params.sketch5_height")
sketch5.setExpression("Constraints[80]", "Params.sketch5_height2")
sketch5.setExpression("Constraints[81]", "Params.sketch5_height3")
pad3 = body.newObject("PartDesign::Pad", "Pad002")
pad3.Profile = sketch5
pad3.setExpression("Length", "Params.pad3_length")

doc.recompute()
